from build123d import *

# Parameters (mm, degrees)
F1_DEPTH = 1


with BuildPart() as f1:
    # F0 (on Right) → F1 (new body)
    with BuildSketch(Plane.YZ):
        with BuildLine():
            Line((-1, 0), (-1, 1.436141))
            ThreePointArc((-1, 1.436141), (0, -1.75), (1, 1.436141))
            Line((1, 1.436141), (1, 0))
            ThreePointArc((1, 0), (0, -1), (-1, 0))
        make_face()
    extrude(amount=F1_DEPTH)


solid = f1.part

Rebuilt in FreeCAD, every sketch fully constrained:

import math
import FreeCAD as App
import Part
import Sketcher
Q = App.Units.Quantity

doc = App.newDocument("Part")
body = doc.addObject("PartDesign::Body", "Body")

# Sketch on YZ plane
sketch1 = doc.addObject("Sketcher::SketchObject", "Sketch")
body.addObject(sketch1)
sketch1.AttachmentSupport = (doc.YZ_Plane, [""])
sketch1.MapMode = "FlatFace"
sketch1.addGeometry([
    Part.LineSegment(App.Vector(-1, 0, 0), App.Vector(-1, 1.436141, 0)),
    Part.ArcOfCircle(Part.Circle(App.Vector(0, 0, 0), App.Vector(0, 0, 1), 1.75), math.radians(124.849901), math.radians(415.150099)),
    Part.LineSegment(App.Vector(1, 1.436141, 0), App.Vector(1, 0, 0)),
    Part.ArcOfCircle(Part.Circle(App.Vector(0, 0, 0), App.Vector(0, 0, 1), 1), math.radians(180), math.radians(360)),
], False)
sketch1.addConstraint([
    Sketcher.Constraint("Coincident", 0, 2, 1, 1),
    Sketcher.Constraint("Coincident", 1, 2, 2, 1),
    Sketcher.Constraint("Tangent", 2, 2, 3, 2),
    Sketcher.Constraint("Tangent", 3, 1, 0, 1),
    Sketcher.Constraint("Vertical", 0),
    Sketcher.Constraint("Vertical", 2),
    Sketcher.Constraint("Coincident", 1, 3, -1, 1),
    Sketcher.Constraint("Coincident", 3, 3, -1, 1),
    Sketcher.Constraint("Radius", 3, Q("1 mm")),
    Sketcher.Constraint("Radius", 1, Q("1.75 mm")),
])
pad1 = doc.addObject("PartDesign::Pad", "Pad")
body.addObject(pad1)
pad1.Profile = sketch1
pad1.Length = 1

doc.recompute()
